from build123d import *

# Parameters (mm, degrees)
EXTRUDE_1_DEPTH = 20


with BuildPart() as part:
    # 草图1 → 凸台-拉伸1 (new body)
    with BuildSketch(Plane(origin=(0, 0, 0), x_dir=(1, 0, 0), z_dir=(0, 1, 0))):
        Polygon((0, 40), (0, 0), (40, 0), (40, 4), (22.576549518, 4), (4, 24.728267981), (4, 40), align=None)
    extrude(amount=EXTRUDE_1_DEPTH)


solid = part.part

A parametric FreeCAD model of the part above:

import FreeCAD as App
import Part
import Sketcher
from FreeCAD import Vector


def add_polygon(sketch, points):
    """Adds a closed chain of lines whose ends are joined by coincident constraints."""
    first, n = sketch.GeometryCount, len(points)
    for a, b in zip(points, points[1:] + points[:1]):
        sketch.addGeometry(Part.LineSegment(App.Vector(*a, 0), App.Vector(*b, 0)), False)
    for i in range(n):
        sketch.addConstraint(Sketcher.Constraint("Coincident", first + i, 2, first + (i + 1) % n, 1))

doc = App.newDocument("Part")
body = doc.addObject("PartDesign::Body", "Body")

# Sketch on XZ plane
sketch1 = body.newObject("Sketcher::SketchObject", "Sketch")
sketch1.AttachmentSupport = (doc.getObject("XZ_Plane"), [""])
sketch1.MapMode = "FlatFace"
add_polygon(sketch1, [(0, -40), (0, 0), (40, 0), (40, -4), (22.6, -4), (4, -24.7), (4, -40)])  # lines 0-6
sketch1.addConstraint(Sketcher.Constraint("Vertical", 0))
sketch1.addConstraint(Sketcher.Constraint("Horizontal", 1))
sketch1.addConstraint(Sketcher.Constraint("Vertical", 2))
sketch1.addConstraint(Sketcher.Constraint("Horizontal", 3))
sketch1.addConstraint(Sketcher.Constraint("Vertical", 5))
sketch1.addConstraint(Sketcher.Constraint("Horizontal", 6))
sketch1.addConstraint(Sketcher.Constraint("Coincident", 0, 2, -1, 1))
sketch1.addConstraint(Sketcher.Constraint("Equal", 1, 0))
sketch1.addConstraint(Sketcher.Constraint("Equal", 6, 2))
sketch1.addConstraint(Sketcher.Constraint("DistanceX", 1, 1, 1, 2, 40.0))
sketch1.addConstraint(Sketcher.Constraint("DistanceX", 6, 2, 6, 1, 4.0))
sketch1.addConstraint(Sketcher.Constraint("DistanceX", 3, 2, 3, 1, 17.42345))
sketch1.addConstraint(Sketcher.Constraint("Distance", 4, 27.834318))
pad1 = body.newObject("PartDesign::Pad", "Pad")
pad1.Profile = sketch1
pad1.Length = 20
pad1.Reversed = True

doc.recompute()
